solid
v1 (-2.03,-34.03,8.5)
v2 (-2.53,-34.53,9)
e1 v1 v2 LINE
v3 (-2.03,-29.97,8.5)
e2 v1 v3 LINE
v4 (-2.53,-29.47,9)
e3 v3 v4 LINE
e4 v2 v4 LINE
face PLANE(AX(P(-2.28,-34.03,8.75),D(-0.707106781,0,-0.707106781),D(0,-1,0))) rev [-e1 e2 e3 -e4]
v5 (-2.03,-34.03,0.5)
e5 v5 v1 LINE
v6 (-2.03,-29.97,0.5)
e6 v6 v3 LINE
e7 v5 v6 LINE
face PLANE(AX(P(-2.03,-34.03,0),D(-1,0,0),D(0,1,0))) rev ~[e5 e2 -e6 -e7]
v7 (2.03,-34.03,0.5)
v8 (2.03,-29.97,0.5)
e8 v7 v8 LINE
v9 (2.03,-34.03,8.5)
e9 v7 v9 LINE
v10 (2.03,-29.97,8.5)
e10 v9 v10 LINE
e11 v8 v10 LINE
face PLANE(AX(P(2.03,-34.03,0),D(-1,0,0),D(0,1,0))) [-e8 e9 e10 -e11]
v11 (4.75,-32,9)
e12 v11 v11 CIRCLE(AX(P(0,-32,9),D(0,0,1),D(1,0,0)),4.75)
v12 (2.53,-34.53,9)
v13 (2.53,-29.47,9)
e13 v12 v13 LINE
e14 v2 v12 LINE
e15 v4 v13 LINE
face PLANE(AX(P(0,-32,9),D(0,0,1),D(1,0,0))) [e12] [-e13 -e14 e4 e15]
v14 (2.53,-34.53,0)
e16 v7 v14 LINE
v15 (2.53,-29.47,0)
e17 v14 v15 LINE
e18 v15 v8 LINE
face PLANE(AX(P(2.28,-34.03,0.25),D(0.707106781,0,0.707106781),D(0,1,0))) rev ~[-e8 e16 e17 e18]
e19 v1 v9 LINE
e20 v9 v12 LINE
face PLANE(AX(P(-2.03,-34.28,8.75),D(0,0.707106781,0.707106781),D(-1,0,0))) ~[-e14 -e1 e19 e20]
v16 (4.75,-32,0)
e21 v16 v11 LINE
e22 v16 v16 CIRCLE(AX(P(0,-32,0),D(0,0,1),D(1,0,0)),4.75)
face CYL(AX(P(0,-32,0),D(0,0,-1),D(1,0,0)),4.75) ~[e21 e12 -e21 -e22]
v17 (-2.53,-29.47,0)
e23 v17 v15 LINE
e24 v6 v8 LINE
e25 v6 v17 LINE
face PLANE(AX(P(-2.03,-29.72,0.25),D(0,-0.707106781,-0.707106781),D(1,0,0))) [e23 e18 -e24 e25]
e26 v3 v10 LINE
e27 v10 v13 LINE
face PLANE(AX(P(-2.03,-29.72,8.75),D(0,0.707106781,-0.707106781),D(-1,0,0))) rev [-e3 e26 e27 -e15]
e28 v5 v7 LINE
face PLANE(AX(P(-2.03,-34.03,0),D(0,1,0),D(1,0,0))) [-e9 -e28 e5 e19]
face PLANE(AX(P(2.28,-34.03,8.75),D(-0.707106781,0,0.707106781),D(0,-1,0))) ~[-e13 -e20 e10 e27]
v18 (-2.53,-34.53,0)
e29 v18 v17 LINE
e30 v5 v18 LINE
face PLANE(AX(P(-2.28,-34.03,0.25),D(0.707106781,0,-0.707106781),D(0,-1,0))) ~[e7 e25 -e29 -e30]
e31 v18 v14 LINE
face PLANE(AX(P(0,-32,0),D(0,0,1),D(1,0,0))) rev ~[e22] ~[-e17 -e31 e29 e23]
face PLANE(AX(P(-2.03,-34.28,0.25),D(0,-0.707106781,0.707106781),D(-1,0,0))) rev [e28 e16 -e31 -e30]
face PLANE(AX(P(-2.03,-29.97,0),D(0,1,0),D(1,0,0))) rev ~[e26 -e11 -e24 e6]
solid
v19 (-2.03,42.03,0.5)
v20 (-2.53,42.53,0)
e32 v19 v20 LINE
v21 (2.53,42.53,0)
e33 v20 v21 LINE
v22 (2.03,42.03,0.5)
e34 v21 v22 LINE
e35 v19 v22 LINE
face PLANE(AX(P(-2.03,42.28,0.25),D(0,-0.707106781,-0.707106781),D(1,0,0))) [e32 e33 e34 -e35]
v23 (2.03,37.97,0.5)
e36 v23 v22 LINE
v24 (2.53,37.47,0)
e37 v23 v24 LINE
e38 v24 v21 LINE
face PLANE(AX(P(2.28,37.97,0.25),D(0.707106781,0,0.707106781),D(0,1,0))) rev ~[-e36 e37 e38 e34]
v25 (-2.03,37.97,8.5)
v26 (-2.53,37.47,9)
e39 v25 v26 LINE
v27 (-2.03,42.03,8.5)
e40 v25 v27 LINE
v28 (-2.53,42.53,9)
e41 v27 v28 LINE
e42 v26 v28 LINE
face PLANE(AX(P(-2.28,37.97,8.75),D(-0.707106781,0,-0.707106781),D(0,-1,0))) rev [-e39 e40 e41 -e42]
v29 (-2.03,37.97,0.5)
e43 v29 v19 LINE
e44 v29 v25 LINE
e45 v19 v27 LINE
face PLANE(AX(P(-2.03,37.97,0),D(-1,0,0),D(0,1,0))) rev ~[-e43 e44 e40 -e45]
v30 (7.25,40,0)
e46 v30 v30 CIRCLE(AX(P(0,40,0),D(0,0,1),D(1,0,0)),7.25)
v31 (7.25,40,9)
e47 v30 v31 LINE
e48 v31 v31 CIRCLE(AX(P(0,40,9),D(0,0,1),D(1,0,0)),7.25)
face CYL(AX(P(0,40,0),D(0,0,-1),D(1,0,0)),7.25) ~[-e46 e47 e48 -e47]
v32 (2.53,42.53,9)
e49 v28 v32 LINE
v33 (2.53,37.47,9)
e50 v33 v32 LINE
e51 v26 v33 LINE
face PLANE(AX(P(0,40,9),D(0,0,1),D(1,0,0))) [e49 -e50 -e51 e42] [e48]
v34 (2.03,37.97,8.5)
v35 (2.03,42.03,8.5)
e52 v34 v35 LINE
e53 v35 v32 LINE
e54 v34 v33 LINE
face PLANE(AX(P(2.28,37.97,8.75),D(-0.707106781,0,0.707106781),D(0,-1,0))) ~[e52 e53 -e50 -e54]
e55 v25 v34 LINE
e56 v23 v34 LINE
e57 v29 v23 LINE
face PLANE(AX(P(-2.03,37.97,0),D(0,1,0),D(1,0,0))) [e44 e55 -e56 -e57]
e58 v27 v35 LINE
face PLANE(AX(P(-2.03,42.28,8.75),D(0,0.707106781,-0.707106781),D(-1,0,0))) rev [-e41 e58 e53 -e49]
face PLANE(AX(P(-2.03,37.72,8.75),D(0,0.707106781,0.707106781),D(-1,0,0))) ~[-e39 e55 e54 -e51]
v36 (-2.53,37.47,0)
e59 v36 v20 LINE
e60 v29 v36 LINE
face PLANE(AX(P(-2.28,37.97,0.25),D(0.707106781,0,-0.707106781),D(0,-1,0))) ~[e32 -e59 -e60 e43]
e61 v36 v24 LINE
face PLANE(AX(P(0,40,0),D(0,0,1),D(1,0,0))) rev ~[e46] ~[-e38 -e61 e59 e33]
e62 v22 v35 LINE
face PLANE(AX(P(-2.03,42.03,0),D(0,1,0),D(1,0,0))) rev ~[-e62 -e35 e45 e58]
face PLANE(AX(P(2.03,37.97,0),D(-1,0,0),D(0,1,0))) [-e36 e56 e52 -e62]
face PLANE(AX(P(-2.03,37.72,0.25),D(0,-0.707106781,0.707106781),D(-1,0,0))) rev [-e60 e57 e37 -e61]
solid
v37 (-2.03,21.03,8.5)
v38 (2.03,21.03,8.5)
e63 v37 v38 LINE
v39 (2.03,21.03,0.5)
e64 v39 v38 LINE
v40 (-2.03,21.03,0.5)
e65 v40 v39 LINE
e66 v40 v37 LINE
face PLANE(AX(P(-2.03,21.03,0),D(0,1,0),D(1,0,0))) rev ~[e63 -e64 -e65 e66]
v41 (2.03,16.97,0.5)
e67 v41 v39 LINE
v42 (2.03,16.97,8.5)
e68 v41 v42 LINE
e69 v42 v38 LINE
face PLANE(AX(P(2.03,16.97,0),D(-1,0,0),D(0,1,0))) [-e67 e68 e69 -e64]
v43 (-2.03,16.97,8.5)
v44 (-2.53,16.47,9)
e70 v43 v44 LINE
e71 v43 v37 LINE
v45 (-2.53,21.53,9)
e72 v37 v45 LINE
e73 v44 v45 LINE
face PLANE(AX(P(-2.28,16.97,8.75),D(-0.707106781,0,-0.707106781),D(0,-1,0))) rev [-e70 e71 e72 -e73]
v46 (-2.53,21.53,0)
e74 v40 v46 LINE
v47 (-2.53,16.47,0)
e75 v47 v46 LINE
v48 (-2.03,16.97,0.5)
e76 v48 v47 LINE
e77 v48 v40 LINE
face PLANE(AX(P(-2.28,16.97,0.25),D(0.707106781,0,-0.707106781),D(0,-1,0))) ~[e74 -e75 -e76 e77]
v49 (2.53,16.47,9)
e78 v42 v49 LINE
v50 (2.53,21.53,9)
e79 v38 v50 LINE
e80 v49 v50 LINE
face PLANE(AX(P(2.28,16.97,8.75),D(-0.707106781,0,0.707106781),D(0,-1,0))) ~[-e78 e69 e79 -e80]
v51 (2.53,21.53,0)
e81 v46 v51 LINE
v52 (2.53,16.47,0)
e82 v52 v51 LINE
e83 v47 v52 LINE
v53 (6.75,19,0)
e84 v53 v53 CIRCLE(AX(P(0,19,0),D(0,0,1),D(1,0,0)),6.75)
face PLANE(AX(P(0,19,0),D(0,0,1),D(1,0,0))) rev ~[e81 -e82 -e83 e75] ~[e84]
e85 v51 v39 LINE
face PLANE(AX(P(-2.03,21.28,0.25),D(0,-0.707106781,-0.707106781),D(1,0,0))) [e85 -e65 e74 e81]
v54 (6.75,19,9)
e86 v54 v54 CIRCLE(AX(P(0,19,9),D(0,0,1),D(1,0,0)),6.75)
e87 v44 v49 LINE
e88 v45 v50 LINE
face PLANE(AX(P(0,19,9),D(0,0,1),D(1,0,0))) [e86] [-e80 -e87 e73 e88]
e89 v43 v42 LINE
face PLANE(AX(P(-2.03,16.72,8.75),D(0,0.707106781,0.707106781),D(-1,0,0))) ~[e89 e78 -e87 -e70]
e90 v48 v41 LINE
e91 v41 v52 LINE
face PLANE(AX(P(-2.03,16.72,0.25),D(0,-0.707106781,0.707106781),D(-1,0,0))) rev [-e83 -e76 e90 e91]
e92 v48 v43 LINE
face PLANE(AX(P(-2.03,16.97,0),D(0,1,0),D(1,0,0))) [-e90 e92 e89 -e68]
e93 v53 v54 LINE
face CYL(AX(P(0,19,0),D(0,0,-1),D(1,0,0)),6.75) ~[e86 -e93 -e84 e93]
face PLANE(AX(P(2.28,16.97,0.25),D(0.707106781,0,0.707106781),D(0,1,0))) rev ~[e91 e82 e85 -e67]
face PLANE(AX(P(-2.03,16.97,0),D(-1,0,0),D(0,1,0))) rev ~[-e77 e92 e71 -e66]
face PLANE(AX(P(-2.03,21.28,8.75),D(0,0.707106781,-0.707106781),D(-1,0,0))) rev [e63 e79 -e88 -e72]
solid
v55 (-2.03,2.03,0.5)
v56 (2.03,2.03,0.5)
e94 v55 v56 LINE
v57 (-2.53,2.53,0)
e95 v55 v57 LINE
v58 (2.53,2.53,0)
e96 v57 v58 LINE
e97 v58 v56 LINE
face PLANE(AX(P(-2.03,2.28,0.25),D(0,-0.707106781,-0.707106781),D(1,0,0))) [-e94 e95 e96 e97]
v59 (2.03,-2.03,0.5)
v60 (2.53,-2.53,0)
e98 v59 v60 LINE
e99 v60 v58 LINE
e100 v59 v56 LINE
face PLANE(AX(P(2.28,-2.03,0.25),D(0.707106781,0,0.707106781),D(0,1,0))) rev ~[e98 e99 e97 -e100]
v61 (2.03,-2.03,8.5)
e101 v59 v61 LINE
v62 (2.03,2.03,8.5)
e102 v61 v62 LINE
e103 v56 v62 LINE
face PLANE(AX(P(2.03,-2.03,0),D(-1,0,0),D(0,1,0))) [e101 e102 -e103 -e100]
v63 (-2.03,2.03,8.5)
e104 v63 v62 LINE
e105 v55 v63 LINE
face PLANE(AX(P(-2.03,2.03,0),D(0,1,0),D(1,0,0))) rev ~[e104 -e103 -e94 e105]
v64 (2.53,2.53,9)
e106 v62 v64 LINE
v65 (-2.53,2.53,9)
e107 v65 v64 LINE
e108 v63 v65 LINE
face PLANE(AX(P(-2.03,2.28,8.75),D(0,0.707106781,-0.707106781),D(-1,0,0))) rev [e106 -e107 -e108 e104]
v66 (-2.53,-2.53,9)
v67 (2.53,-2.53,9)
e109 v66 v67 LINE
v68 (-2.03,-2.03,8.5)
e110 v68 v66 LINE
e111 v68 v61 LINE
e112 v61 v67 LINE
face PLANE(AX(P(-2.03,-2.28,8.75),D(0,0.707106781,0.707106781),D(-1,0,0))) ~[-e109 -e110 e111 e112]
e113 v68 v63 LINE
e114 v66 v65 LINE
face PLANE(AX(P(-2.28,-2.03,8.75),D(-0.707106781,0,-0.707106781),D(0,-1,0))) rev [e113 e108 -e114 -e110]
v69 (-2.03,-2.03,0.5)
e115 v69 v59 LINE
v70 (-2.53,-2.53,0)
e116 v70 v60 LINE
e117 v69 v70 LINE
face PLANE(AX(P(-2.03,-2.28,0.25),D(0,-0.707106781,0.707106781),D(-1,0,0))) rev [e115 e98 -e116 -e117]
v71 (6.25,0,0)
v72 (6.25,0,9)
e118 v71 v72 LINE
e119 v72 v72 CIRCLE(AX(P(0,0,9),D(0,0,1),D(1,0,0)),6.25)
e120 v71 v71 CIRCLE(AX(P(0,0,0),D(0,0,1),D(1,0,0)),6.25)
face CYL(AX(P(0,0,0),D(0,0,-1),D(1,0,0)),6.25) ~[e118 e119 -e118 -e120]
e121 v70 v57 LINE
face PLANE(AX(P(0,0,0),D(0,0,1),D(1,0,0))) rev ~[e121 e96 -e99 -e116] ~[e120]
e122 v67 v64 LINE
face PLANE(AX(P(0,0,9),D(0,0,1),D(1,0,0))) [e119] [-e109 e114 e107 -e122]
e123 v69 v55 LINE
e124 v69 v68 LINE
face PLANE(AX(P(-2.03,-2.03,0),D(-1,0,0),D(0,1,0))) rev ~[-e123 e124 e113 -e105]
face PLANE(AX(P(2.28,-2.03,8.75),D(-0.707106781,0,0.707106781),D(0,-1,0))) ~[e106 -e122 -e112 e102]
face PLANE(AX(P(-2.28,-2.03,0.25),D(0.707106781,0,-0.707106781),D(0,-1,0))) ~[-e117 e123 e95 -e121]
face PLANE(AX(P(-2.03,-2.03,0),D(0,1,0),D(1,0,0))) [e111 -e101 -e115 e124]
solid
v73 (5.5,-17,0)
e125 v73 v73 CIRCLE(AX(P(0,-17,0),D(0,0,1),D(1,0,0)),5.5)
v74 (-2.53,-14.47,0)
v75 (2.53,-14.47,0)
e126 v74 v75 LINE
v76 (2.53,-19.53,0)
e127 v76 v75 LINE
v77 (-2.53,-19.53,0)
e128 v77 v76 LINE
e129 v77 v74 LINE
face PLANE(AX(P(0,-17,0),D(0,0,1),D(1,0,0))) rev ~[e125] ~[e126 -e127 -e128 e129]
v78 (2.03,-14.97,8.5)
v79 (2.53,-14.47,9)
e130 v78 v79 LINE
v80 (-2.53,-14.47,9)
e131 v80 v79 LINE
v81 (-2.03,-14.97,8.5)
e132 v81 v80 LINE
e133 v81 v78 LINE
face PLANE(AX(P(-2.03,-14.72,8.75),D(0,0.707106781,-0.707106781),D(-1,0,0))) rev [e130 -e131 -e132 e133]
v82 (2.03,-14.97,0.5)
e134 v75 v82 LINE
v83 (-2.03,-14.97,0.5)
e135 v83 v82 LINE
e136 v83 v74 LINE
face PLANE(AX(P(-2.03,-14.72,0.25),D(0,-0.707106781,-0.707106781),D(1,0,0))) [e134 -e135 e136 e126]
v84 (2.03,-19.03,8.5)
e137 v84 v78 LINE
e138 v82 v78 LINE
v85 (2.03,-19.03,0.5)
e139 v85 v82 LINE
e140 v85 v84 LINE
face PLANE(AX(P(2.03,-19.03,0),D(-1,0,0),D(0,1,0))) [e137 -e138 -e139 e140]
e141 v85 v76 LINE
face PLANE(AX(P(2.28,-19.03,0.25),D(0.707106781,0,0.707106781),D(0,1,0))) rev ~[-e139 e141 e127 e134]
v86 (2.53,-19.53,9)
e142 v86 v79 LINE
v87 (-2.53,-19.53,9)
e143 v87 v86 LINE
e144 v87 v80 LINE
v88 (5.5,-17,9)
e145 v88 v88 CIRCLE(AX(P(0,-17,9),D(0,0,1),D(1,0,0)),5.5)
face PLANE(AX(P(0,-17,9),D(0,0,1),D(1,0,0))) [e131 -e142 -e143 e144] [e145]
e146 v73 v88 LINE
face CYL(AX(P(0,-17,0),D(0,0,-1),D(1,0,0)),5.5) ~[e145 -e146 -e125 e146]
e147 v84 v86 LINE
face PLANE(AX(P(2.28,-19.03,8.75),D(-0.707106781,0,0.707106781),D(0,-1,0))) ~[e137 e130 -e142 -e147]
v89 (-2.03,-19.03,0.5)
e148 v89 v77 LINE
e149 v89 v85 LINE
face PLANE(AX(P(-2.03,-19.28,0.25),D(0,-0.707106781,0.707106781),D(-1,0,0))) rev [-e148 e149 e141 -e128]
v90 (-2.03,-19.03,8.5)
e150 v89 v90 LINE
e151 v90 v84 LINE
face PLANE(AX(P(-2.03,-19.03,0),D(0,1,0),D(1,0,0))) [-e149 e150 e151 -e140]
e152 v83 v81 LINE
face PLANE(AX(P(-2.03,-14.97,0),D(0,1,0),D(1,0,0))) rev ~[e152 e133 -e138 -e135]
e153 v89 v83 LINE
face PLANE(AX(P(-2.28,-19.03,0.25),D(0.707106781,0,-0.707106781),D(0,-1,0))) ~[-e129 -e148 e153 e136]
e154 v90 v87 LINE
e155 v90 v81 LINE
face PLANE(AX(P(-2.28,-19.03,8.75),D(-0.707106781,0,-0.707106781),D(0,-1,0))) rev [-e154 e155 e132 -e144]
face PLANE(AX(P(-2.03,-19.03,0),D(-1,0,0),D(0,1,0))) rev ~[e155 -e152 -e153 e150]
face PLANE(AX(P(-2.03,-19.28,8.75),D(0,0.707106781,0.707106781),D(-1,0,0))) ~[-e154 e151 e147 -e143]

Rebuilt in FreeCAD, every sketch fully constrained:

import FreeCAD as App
import Part
import Sketcher
Q = App.Units.Quantity


def edges_at(feature, points):
    """Names of the edges that pass closest to the given points."""
    edges = feature.Shape.Edges
    near = lambda p: min(range(len(edges)), key=lambda i: edges[i].distToShape(Part.Vertex(*p))[0])
    return sorted({f"Edge{near(p) + 1}" for p in points})

doc = App.newDocument("Part")
body = doc.addObject("PartDesign::Body", "Body")
body.AllowCompound = True

# Sketch on XY plane
sketch1 = body.newObject("Sketcher::SketchObject", "Sketch")
sketch1.AttachmentSupport = (doc.getObject("XY_Plane"), [""])
sketch1.MapMode = "FlatFace"
sketch1.addGeometry(Part.Circle(App.Vector(0, -32, 0), App.Vector(0, 0, 1), 4.8), False)
sketch1.addGeometry(Part.LineSegment(App.Vector(2, -34, 0), App.Vector(-2, -34, 0)), False)
sketch1.addGeometry(Part.LineSegment(App.Vector(-2, -34, 0), App.Vector(-2, -30, 0)), False)
sketch1.addGeometry(Part.LineSegment(App.Vector(-2, -30, 0), App.Vector(2, -30, 0)), False)
sketch1.addGeometry(Part.LineSegment(App.Vector(2, -30, 0), App.Vector(2, -34, 0)), False)
sketch1.addGeometry(Part.Circle(App.Vector(0, -17, 0), App.Vector(0, 0, 1), 5.5), False)
sketch1.addGeometry(Part.LineSegment(App.Vector(2, -19, 0), App.Vector(-2, -19, 0)), False)
sketch1.addGeometry(Part.LineSegment(App.Vector(-2, -19, 0), App.Vector(-2, -15, 0)), False)
sketch1.addGeometry(Part.LineSegment(App.Vector(-2, -15, 0), App.Vector(2, -15, 0)), False)
sketch1.addGeometry(Part.LineSegment(App.Vector(2, -15, 0), App.Vector(2, -19, 0)), False)
sketch1.addGeometry(Part.Circle(App.Vector(0, 0, 0), App.Vector(0, 0, 1), 6.2), False)
sketch1.addGeometry(Part.LineSegment(App.Vector(2, -2, 0), App.Vector(-2, -2, 0)), False)
sketch1.addGeometry(Part.LineSegment(App.Vector(-2, -2, 0), App.Vector(-2, 2, 0)), False)
sketch1.addGeometry(Part.LineSegment(App.Vector(-2, 2, 0), App.Vector(2, 2, 0)), False)
sketch1.addGeometry(Part.LineSegment(App.Vector(2, 2, 0), App.Vector(2, -2, 0)), False)
sketch1.addGeometry(Part.Circle(App.Vector(0, 19, 0), App.Vector(0, 0, 1), 6.8), False)
sketch1.addGeometry(Part.LineSegment(App.Vector(2, 17, 0), App.Vector(-2, 17, 0)), False)
sketch1.addGeometry(Part.LineSegment(App.Vector(-2, 17, 0), App.Vector(-2, 21, 0)), False)
sketch1.addGeometry(Part.LineSegment(App.Vector(-2, 21, 0), App.Vector(2, 21, 0)), False)
sketch1.addGeometry(Part.LineSegment(App.Vector(2, 21, 0), App.Vector(2, 17, 0)), False)
sketch1.addGeometry(Part.Circle(App.Vector(0, 40, 0), App.Vector(0, 0, 1), 7.2), False)
sketch1.addGeometry(Part.LineSegment(App.Vector(2, 38, 0), App.Vector(-2, 38, 0)), False)
sketch1.addGeometry(Part.LineSegment(App.Vector(-2, 38, 0), App.Vector(-2, 42, 0)), False)
sketch1.addGeometry(Part.LineSegment(App.Vector(-2, 42, 0), App.Vector(2, 42, 0)), False)
sketch1.addGeometry(Part.LineSegment(App.Vector(2, 42, 0), App.Vector(2, 38, 0)), False)
sketch1.addConstraint(Sketcher.Constraint("Coincident", 1, 2, 2, 1))
sketch1.addConstraint(Sketcher.Constraint("Coincident", 2, 2, 3, 1))
sketch1.addConstraint(Sketcher.Constraint("Coincident", 3, 2, 4, 1))
sketch1.addConstraint(Sketcher.Constraint("Coincident", 4, 2, 1, 1))
sketch1.addConstraint(Sketcher.Constraint("Coincident", 6, 2, 7, 1))
sketch1.addConstraint(Sketcher.Constraint("Coincident", 7, 2, 8, 1))
sketch1.addConstraint(Sketcher.Constraint("Coincident", 8, 2, 9, 1))
sketch1.addConstraint(Sketcher.Constraint("Coincident", 9, 2, 6, 1))
sketch1.addConstraint(Sketcher.Constraint("Coincident", 11, 2, 12, 1))
sketch1.addConstraint(Sketcher.Constraint("Coincident", 12, 2, 13, 1))
sketch1.addConstraint(Sketcher.Constraint("Coincident", 13, 2, 14, 1))
sketch1.addConstraint(Sketcher.Constraint("Coincident", 14, 2, 11, 1))
sketch1.addConstraint(Sketcher.Constraint("Coincident", 16, 2, 17, 1))
sketch1.addConstraint(Sketcher.Constraint("Coincident", 17, 2, 18, 1))
sketch1.addConstraint(Sketcher.Constraint("Coincident", 18, 2, 19, 1))
sketch1.addConstraint(Sketcher.Constraint("Coincident", 19, 2, 16, 1))
sketch1.addConstraint(Sketcher.Constraint("Coincident", 21, 2, 22, 1))
sketch1.addConstraint(Sketcher.Constraint("Coincident", 22, 2, 23, 1))
sketch1.addConstraint(Sketcher.Constraint("Coincident", 23, 2, 24, 1))
sketch1.addConstraint(Sketcher.Constraint("Coincident", 24, 2, 21, 1))
sketch1.addConstraint(Sketcher.Constraint("Horizontal", 1))
sketch1.addConstraint(Sketcher.Constraint("Vertical", 2))
sketch1.addConstraint(Sketcher.Constraint("Horizontal", 3))
sketch1.addConstraint(Sketcher.Constraint("Vertical", 4))
sketch1.addConstraint(Sketcher.Constraint("Horizontal", 6))
sketch1.addConstraint(Sketcher.Constraint("Vertical", 7))
sketch1.addConstraint(Sketcher.Constraint("Horizontal", 8))
sketch1.addConstraint(Sketcher.Constraint("Vertical", 9))
sketch1.addConstraint(Sketcher.Constraint("Horizontal", 11))
sketch1.addConstraint(Sketcher.Constraint("Vertical", 12))
sketch1.addConstraint(Sketcher.Constraint("Horizontal", 13))
sketch1.addConstraint(Sketcher.Constraint("Vertical", 14))
sketch1.addConstraint(Sketcher.Constraint("Horizontal", 16))
sketch1.addConstraint(Sketcher.Constraint("Vertical", 17))
sketch1.addConstraint(Sketcher.Constraint("Horizontal", 18))
sketch1.addConstraint(Sketcher.Constraint("Vertical", 19))
sketch1.addConstraint(Sketcher.Constraint("Horizontal", 21))
sketch1.addConstraint(Sketcher.Constraint("Vertical", 22))
sketch1.addConstraint(Sketcher.Constraint("Horizontal", 23))
sketch1.addConstraint(Sketcher.Constraint("Vertical", 24))
sketch1.addConstraint(Sketcher.Constraint("Coincident", 10, 3, -1, 1))
sketch1.addConstraint(Sketcher.Constraint("Symmetric", 11, 2, 13, 2, -1, 1))
sketch1.addConstraint(Sketcher.Constraint("PointOnObject", 0, 3, -2))
sketch1.addConstraint(Sketcher.Constraint("PointOnObject", 5, 3, -2))
sketch1.addConstraint(Sketcher.Constraint("PointOnObject", 15, 3, -2))
sketch1.addConstraint(Sketcher.Constraint("PointOnObject", 20, 3, -2))
sketch1.addConstraint(Sketcher.Constraint("Vertical", 2, 2, 6, 2))
sketch1.addConstraint(Sketcher.Constraint("Vertical", 4, 2, 8, 2))
sketch1.addConstraint(Sketcher.Constraint("Vertical", 7, 2, 11, 2))
sketch1.addConstraint(Sketcher.Constraint("Vertical", 9, 2, 13, 2))
sketch1.addConstraint(Sketcher.Constraint("Vertical", 12, 2, 16, 2))
sketch1.addConstraint(Sketcher.Constraint("Vertical", 14, 2, 18, 2))
sketch1.addConstraint(Sketcher.Constraint("Vertical", 17, 2, 21, 2))
sketch1.addConstraint(Sketcher.Constraint("Vertical", 19, 2, 23, 2))
sketch1.addConstraint(Sketcher.Constraint("Equal", 23, 2))
sketch1.addConstraint(Sketcher.Constraint("Equal", 4, 7))
sketch1.addConstraint(Sketcher.Constraint("Equal", 9, 12))
sketch1.addConstraint(Sketcher.Constraint("Equal", 14, 17))
sketch1.addConstraint(Sketcher.Constraint("Equal", 19, 22))
sketch1.addConstraint(Sketcher.Constraint("Diameter", 5, Q("11 mm")))
sketch1.addConstraint(Sketcher.Constraint("Diameter", 0, Q("9.5 mm")))
sketch1.addConstraint(Sketcher.Constraint("Diameter", 10, Q("12.5 mm")))
sketch1.addConstraint(Sketcher.Constraint("Diameter", 15, Q("13.5 mm")))
sketch1.addConstraint(Sketcher.Constraint("Diameter", 20, Q("14.5 mm")))
sketch1.addConstraint(Sketcher.Constraint("DistanceY", 0, 3, -1, 1, Q("32 mm")))
sketch1.addConstraint(Sketcher.Constraint("DistanceY", 5, 3, -1, 1, Q("17 mm")))
sketch1.addConstraint(Sketcher.Constraint("DistanceY", -1, 1, 15, 3, Q("19 mm")))
sketch1.addConstraint(Sketcher.Constraint("DistanceY", -1, 1, 20, 3, Q("40 mm")))
sketch1.addConstraint(Sketcher.Constraint("DistanceY", 1, 2, 6, 2, Q("15 mm")))
sketch1.addConstraint(Sketcher.Constraint("DistanceY", 6, 2, 11, 2, Q("17 mm")))
sketch1.addConstraint(Sketcher.Constraint("DistanceY", 11, 2, 16, 2, Q("19 mm")))
sketch1.addConstraint(Sketcher.Constraint("DistanceY", 16, 2, 21, 2, Q("21 mm")))
sketch1.addConstraint(Sketcher.Constraint("DistanceX", 1, 2, 1, 1, Q("4.06 mm")))
pad1 = body.newObject("PartDesign::Pad", "Pad")
pad1.Profile = sketch1
pad1.Length = 9
doc.recompute()

chamfer = body.newObject("PartDesign::Chamfer", "Chamfer")
chamfer.Base = (pad1, edges_at(pad1, [
    (0, 42.03, 9),
    (-2.03, 40, 9),
    (0, 37.97, 9),
    (2.03, 40, 9),
    (-2.03, 19, 9),
    (0, 21.03, 9),
    (2.03, 19, 9),
    (0, 16.97, 9),
    (-2.03, 0, 9),
    (0, 2.03, 9),
    (0, -2.03, 9),
    (2.03, 0, 9),
    (-2.03, -17, 9),
    (0, -14.97, 9),
    (2.03, -17, 9),
    (0, -19.03, 9),
    (-2.03, -32, 9),
    (0, -29.97, 9),
    (2.03, -32, 9),
    (0, -34.03, 9),
]))
chamfer.Size = 0.5
doc.recompute()

chamfer2 = body.newObject("PartDesign::Chamfer", "Chamfer001")
chamfer2.Base = (chamfer, edges_at(chamfer, [
    (-2.03, 40, 0),
    (0, 37.97, 0),
    (0, 42.03, 0),
    (2.03, 40, 0),
    (-2.03, 19, 0),
    (0, 16.97, 0),
    (2.03, 19, 0),
    (0, 21.03, 0),
    (-2.03, 0, 0),
    (0, 2.03, 0),
    (0, -2.03, 0),
    (2.03, 0, 0),
    (-2.03, -17, 0),
    (0, -19.03, 0),
    (0, -14.97, 0),
    (2.03, -17, 0),
    (-2.03, -32, 0),
    (0, -34.03, 0),
    (0, -29.97, 0),
    (2.03, -32, 0),
]))
chamfer2.Size = 0.5

doc.recompute()
